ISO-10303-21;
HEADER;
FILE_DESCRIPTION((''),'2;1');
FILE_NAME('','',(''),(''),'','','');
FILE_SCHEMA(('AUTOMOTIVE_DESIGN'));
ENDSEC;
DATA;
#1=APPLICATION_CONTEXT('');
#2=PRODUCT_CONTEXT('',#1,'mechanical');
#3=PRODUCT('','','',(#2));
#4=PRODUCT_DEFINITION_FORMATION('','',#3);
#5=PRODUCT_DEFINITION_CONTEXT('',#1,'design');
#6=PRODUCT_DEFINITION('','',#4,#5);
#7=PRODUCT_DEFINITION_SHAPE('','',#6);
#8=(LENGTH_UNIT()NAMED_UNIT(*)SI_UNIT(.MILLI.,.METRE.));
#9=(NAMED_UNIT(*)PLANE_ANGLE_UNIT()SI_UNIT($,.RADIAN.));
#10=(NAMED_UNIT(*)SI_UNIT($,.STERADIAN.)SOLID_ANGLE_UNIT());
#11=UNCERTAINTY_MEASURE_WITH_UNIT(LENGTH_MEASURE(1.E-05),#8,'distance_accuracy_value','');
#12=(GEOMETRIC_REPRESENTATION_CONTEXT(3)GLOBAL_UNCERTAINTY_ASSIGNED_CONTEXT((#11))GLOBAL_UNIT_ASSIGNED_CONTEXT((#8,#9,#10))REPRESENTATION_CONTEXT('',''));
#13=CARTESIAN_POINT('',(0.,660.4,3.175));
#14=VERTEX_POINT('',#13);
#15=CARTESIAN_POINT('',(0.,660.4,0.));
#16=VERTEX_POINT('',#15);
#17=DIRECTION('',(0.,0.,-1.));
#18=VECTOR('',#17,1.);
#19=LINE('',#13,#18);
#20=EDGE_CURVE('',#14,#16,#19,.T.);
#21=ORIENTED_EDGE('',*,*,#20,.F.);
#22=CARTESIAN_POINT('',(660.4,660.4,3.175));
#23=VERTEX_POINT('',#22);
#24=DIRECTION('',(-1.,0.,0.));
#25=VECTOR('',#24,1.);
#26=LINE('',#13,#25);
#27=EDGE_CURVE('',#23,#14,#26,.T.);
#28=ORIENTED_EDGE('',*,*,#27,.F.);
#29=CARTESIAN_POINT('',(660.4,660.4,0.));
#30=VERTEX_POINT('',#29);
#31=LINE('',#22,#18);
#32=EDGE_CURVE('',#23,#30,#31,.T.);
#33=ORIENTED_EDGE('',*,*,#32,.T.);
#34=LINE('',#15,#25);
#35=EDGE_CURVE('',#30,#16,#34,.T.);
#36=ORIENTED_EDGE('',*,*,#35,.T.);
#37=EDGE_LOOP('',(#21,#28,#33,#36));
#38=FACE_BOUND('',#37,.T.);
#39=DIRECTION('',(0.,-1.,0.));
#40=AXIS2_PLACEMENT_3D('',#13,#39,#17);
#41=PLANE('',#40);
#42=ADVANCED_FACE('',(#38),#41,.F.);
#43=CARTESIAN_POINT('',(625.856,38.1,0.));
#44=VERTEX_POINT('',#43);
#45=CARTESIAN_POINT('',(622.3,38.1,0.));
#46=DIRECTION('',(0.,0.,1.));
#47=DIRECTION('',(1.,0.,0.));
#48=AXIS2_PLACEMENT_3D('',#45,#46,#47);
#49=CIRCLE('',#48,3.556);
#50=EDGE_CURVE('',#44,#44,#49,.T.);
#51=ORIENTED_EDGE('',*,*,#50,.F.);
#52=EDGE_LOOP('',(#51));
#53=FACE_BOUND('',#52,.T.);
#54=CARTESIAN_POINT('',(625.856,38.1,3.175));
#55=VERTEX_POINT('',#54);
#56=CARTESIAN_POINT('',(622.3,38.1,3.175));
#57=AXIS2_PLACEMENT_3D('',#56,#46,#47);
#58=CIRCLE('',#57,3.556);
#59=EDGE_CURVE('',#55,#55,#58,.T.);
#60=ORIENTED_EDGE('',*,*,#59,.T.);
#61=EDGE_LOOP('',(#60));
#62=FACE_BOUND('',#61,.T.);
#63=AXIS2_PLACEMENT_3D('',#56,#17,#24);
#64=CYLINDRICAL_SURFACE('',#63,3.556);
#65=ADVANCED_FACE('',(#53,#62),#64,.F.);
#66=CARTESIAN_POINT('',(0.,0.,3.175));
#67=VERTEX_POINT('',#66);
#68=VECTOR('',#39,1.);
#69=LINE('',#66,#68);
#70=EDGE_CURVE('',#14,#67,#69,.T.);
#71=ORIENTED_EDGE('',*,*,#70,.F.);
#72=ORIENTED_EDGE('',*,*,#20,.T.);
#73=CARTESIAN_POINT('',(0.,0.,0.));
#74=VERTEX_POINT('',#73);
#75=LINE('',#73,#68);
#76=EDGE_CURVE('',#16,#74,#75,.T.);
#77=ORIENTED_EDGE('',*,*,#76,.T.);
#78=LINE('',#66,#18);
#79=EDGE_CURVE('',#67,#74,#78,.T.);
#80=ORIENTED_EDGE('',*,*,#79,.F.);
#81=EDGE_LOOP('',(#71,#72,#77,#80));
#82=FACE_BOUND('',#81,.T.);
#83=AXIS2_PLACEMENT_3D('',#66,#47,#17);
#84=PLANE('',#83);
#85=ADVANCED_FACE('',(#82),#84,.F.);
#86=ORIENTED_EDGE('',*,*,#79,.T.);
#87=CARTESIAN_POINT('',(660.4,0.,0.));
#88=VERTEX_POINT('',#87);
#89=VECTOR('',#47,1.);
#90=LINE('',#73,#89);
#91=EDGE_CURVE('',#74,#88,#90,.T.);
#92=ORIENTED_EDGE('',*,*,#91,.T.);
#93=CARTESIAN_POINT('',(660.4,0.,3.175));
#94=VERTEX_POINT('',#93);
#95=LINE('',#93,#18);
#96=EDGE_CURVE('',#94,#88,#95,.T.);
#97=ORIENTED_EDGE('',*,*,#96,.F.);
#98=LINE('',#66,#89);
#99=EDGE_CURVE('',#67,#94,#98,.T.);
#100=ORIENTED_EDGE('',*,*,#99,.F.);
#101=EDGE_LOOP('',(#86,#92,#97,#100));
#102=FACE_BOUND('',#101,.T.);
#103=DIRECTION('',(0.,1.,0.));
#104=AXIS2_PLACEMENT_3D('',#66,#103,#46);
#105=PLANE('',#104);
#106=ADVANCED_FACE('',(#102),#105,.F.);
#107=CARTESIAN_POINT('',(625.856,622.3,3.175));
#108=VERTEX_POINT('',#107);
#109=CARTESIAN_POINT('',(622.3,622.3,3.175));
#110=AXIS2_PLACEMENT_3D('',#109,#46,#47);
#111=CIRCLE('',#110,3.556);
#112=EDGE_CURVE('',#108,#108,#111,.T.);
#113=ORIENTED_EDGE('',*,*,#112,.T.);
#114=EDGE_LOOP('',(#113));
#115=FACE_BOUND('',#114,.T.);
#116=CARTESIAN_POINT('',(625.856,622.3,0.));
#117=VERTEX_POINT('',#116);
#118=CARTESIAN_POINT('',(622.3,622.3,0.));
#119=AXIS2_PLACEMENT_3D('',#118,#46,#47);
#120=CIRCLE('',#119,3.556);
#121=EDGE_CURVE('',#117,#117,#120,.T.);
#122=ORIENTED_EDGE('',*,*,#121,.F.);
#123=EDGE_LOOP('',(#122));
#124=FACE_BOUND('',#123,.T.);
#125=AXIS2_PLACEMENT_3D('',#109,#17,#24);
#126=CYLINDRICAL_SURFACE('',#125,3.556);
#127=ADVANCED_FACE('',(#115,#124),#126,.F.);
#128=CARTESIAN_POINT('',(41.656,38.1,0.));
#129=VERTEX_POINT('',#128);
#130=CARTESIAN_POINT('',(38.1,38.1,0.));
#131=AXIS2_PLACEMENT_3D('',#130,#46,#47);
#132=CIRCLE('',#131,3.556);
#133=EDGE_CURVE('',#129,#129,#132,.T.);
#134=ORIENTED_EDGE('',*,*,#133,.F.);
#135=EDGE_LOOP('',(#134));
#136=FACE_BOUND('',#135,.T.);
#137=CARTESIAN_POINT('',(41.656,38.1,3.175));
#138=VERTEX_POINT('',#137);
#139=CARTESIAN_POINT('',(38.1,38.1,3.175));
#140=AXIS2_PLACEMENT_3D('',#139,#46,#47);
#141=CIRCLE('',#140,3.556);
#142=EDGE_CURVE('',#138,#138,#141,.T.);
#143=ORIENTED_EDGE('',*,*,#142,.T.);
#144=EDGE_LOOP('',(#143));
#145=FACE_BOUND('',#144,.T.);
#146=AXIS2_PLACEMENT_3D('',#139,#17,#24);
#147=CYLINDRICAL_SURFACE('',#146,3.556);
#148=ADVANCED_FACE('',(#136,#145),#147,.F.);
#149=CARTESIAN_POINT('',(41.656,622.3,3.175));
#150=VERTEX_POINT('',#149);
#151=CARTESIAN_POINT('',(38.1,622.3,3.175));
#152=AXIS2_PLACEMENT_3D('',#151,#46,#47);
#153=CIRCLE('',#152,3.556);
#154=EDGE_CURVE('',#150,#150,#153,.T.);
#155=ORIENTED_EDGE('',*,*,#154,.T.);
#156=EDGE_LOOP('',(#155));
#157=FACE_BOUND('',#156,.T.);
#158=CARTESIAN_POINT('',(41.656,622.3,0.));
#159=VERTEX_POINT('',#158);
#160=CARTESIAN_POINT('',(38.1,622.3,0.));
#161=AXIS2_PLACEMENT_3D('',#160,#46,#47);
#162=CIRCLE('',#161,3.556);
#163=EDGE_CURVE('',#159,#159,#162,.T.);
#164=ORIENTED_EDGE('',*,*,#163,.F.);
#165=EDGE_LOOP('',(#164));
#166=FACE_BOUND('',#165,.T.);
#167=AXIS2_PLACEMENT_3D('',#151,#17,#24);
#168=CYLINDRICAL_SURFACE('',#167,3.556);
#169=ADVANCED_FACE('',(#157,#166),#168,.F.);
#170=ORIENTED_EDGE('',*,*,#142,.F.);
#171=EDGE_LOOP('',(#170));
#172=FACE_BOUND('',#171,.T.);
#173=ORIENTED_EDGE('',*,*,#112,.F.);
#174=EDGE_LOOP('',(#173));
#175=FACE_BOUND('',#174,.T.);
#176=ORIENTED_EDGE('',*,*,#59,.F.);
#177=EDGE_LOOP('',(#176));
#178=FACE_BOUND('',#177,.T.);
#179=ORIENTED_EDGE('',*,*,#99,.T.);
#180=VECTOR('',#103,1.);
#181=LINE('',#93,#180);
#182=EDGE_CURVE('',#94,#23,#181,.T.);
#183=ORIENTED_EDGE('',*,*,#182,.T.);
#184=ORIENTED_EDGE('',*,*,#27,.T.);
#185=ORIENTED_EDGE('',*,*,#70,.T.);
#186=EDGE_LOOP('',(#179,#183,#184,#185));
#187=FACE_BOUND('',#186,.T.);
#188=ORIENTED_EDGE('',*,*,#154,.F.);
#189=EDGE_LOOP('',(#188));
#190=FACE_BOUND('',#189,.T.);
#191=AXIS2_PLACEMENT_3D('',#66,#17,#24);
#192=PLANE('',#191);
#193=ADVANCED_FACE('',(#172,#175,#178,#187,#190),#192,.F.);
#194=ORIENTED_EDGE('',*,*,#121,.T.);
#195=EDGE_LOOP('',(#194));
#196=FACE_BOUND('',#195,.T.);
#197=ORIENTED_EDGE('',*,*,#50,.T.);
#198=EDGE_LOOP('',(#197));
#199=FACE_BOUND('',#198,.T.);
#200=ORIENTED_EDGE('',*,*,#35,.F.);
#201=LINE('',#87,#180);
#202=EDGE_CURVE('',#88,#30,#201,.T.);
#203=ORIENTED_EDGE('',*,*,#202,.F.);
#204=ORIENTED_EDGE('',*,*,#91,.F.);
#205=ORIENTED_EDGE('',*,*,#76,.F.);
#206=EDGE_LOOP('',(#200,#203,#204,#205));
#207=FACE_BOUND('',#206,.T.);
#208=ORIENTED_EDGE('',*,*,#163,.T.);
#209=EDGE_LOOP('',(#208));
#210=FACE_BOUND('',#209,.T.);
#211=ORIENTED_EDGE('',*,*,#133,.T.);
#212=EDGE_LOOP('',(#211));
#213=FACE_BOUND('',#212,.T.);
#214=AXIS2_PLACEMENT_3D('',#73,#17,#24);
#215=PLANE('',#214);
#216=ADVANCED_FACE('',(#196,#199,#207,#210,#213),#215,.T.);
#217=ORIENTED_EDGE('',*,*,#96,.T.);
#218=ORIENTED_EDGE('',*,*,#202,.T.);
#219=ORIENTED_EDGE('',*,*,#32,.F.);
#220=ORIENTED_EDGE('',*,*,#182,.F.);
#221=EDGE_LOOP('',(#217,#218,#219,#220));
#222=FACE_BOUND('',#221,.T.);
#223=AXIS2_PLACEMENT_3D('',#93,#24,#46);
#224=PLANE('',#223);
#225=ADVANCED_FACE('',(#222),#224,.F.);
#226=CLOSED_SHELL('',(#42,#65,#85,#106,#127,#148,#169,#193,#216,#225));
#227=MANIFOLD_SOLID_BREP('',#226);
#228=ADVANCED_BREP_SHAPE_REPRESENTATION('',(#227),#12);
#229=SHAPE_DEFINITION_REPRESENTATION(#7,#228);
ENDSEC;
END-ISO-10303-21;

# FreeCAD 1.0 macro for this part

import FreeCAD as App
import Part
import Sketcher
from FreeCAD import Vector
Q = App.Units.Quantity


def add_polygon(sketch, points):
    """Adds a closed chain of lines whose ends are joined by coincident constraints."""
    first, n = sketch.GeometryCount, len(points)
    for a, b in zip(points, points[1:] + points[:1]):
        sketch.addGeometry(Part.LineSegment(App.Vector(*a, 0), App.Vector(*b, 0)), False)
    for i in range(n):
        sketch.addConstraint(Sketcher.Constraint("Coincident", first + i, 2, first + (i + 1) % n, 1))

doc = App.newDocument("Part")
body = doc.addObject("PartDesign::Body", "Body")

sketch1 = body.newObject("Sketcher::SketchObject", "Sketch")
sketch1.AttachmentSupport = (doc.getObject("XY_Plane"), [""])
sketch1.MapMode = "FlatFace"
add_polygon(sketch1, [(0, 660.4), (0, 0), (660.4, 0), (660.4, 660.4)])
sketch1.addGeometry(Part.Circle(Vector(38.1, 38.1, 0), Vector(0, 0, 1), 3.6), False)
sketch1.addGeometry(Part.Circle(Vector(622.3, 38.1, 0), Vector(0, 0, 1), 3.6), False)
sketch1.addGeometry(Part.Circle(Vector(38.1, 622.3, 0), Vector(0, 0, 1), 3.6), False)
sketch1.addGeometry(Part.Circle(Vector(622.3, 622.3, 0), Vector(0, 0, 1), 3.6), False)
sketch1.addConstraint(Sketcher.Constraint("Vertical", 0))
sketch1.addConstraint(Sketcher.Constraint("Horizontal", 1))
sketch1.addConstraint(Sketcher.Constraint("Vertical", 2))
sketch1.addConstraint(Sketcher.Constraint("Horizontal", 3))
sketch1.addConstraint(Sketcher.Constraint("Coincident", 0, 2, -1, 1))
sketch1.addConstraint(Sketcher.Constraint("Equal", 4, 5))
sketch1.addConstraint(Sketcher.Constraint("Equal", 5, 6))
sketch1.addConstraint(Sketcher.Constraint("Equal", 6, 7))
sketch1.addConstraint(Sketcher.Constraint("Horizontal", 4, 3, 5, 3))
sketch1.addConstraint(Sketcher.Constraint("Horizontal", 6, 3, 7, 3))
sketch1.addConstraint(Sketcher.Constraint("Vertical", 4, 3, 6, 3))
sketch1.addConstraint(Sketcher.Constraint("Vertical", 5, 3, 7, 3))
sketch1.addConstraint(Sketcher.Constraint("Equal", 3, 0))
sketch1.addConstraint(Sketcher.Constraint("Diameter", 4, Q("0.28 in")))
sketch1.addConstraint(Sketcher.Constraint("DistanceX", 1, 1, 1, 2, Q("26 in")))
sketch1.addConstraint(Sketcher.Constraint("DistanceX", 4, 3, 5, 3, Q("23 in")))
sketch1.addConstraint(Sketcher.Constraint("DistanceY", 4, 3, 6, 3, Q("23 in")))
sketch1.addConstraint(Sketcher.Constraint("DistanceX", -1, 1, 4, 3, Q("1.5 in")))
sketch1.addConstraint(Sketcher.Constraint("DistanceY", -1, 1, 4, 3, Q("1.5 in")))
pad1 = body.newObject("PartDesign::Pad", "Pad")
pad1.Profile = sketch1
pad1.Length = Q("0.125 in")

doc.recompute()
